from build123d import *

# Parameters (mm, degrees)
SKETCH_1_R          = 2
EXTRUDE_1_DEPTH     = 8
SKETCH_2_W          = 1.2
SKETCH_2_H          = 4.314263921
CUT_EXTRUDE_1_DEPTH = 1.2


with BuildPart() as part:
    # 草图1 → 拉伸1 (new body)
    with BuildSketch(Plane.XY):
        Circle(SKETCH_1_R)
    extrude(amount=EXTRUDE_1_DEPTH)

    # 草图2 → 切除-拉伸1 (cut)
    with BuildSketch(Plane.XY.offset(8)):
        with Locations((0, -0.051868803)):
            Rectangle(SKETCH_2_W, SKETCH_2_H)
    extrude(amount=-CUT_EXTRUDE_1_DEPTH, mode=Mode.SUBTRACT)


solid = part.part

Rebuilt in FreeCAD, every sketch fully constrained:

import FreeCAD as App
import Part
import Sketcher
Q = App.Units.Quantity

doc = App.newDocument("Part")
body = doc.addObject("PartDesign::Body", "Body")

sketch1 = body.newObject("Sketcher::SketchObject", "Sketch")
sketch1.AttachmentSupport = (doc.getObject("XY_Plane"), [""])
sketch1.MapMode = "FlatFace"
sketch1.addGeometry(Part.Circle(App.Vector(0, 0, 0), App.Vector(0, 0, 1), 2), False)
sketch1.addConstraint(Sketcher.Constraint("Coincident", 0, 3, -1, 1))
sketch1.addConstraint(Sketcher.Constraint("Diameter", 0, Q("4 mm")))
pad1 = body.newObject("PartDesign::Pad", "Pad")
pad1.Profile = sketch1
pad1.Length = 8

sketch2 = body.newObject("Sketcher::SketchObject", "Sketch001")
sketch2.AttachmentSupport = (doc.getObject("XY_Plane"), [""])
sketch2.MapMode = "FlatFace"
sketch2.AttachmentOffset = App.Placement(App.Vector(0, 0, 8), App.Rotation())
sketch2.addGeometry(Part.LineSegment(App.Vector(-0.6, 2.1, 0), App.Vector(-0.6, -2.2, 0)), False)
sketch2.addGeometry(Part.LineSegment(App.Vector(-0.6, -2.2, 0), App.Vector(0.6, -2.2, 0)), False)
sketch2.addGeometry(Part.LineSegment(App.Vector(0.6, -2.2, 0), App.Vector(0.6, 2.1, 0)), False)
sketch2.addGeometry(Part.LineSegment(App.Vector(0.6, 2.1, 0), App.Vector(-0.6, 2.1, 0)), False)
sketch2.addConstraint(Sketcher.Constraint("Coincident", 0, 2, 1, 1))
sketch2.addConstraint(Sketcher.Constraint("Coincident", 1, 2, 2, 1))
sketch2.addConstraint(Sketcher.Constraint("Coincident", 2, 2, 3, 1))
sketch2.addConstraint(Sketcher.Constraint("Coincident", 3, 2, 0, 1))
sketch2.addConstraint(Sketcher.Constraint("Vertical", 0))
sketch2.addConstraint(Sketcher.Constraint("Horizontal", 1))
sketch2.addConstraint(Sketcher.Constraint("Vertical", 2))
sketch2.addConstraint(Sketcher.Constraint("Horizontal", 3))
sketch2.addConstraint(Sketcher.Constraint("DistanceX", 1, 1, 1, 2, Q("1.2 mm")))
sketch2.addConstraint(Sketcher.Constraint("DistanceX", 0, 2, -1, 1, Q("0.6 mm")))
sketch2.addConstraint(Sketcher.Constraint("DistanceY", 0, 2, -1, 1, Q("2.209001 mm")))
sketch2.addConstraint(Sketcher.Constraint("DistanceY", 0, 2, 0, 1, Q("4.314264 mm")))
pocket1 = body.newObject("PartDesign::Pocket", "Pocket")
pocket1.Profile = sketch2
pocket1.Length = 1.2

doc.recompute()
